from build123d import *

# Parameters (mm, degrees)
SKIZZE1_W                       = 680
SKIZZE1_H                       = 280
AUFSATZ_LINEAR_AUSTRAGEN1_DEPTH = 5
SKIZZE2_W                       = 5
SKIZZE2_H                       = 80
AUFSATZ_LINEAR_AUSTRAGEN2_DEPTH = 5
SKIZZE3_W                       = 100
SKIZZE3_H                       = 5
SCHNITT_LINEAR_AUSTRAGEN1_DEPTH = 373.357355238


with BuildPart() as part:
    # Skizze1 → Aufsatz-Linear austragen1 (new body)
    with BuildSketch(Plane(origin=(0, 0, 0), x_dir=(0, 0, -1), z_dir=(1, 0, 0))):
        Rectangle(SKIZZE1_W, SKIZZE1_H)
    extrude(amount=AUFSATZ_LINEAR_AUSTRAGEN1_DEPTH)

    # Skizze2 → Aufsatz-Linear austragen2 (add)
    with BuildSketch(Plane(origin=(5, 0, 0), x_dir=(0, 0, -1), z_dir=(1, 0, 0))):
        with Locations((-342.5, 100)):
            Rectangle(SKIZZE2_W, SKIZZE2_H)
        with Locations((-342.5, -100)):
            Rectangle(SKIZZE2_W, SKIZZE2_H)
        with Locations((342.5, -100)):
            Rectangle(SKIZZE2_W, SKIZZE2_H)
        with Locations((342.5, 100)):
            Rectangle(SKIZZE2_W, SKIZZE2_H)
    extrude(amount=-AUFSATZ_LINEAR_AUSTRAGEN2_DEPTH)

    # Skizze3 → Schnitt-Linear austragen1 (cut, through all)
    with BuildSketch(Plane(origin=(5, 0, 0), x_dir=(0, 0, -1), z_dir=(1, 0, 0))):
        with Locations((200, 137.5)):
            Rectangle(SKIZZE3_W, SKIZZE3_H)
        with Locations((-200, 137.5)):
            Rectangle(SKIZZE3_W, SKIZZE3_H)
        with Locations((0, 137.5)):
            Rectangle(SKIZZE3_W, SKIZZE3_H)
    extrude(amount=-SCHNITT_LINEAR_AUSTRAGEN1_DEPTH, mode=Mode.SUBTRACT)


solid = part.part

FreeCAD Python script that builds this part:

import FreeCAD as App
import Part
import Sketcher
from FreeCAD import Vector


def add_polygon(sketch, points):
    """Adds a closed chain of lines whose ends are joined by coincident constraints."""
    first, n = sketch.GeometryCount, len(points)
    for a, b in zip(points, points[1:] + points[:1]):
        sketch.addGeometry(Part.LineSegment(App.Vector(*a, 0), App.Vector(*b, 0)), False)
    for i in range(n):
        sketch.addConstraint(Sketcher.Constraint("Coincident", first + i, 2, first + (i + 1) % n, 1))

doc = App.newDocument("Part")
params = doc.addObject("Spreadsheet::Sheet", "Params")
for row, (alias, value) in enumerate([
    ("sketch1_width", "280 mm"),
    ("sketch1_height", "680 mm"),
    ("pad1_length", "5 mm"),
    ("sketch2_width", "80 mm"),
    ("sketch2_height", "5 mm"),
    ("pad2_length", "5 mm"),
    ("sketch3_width", "5 mm"),
    ("sketch3_height", "100 mm"),
], start=1):
    params.set(f"A{row}", alias)
    params.set(f"B{row}", "=" + value)
    params.setAlias(f"B{row}", alias)

body = doc.addObject("PartDesign::Body", "Body")

# Sketch on YZ plane
sketch1 = body.newObject("Sketcher::SketchObject", "Sketch")
sketch1.AttachmentSupport = (doc.getObject("YZ_Plane"), [""])
sketch1.MapMode = "FlatFace"
add_polygon(sketch1, [(140, 340), (-140, 340), (-140, -340), (140, -340)])  # lines 0-3
sketch1.addConstraint(Sketcher.Constraint("Horizontal", 0))
sketch1.addConstraint(Sketcher.Constraint("Vertical", 1))
sketch1.addConstraint(Sketcher.Constraint("Horizontal", 2))
sketch1.addConstraint(Sketcher.Constraint("Vertical", 3))
sketch1.addConstraint(Sketcher.Constraint("Symmetric", 0, 2, 2, 2, -1, 1))
sketch1.addConstraint(Sketcher.Constraint("DistanceX", 0, 2, 0, 1, 280.0))
sketch1.addConstraint(Sketcher.Constraint("DistanceY", 1, 2, 1, 1, 680.0))
sketch1.setExpression("Constraints[9]", "Params.sketch1_width")
sketch1.setExpression("Constraints[10]", "Params.sketch1_height")
pad1 = body.newObject("PartDesign::Pad", "Pad")
pad1.Profile = sketch1
pad1.setExpression("Length", "Params.pad1_length")

# Sketch on YZ plane
sketch2 = body.newObject("Sketcher::SketchObject", "Sketch001")
sketch2.AttachmentSupport = (doc.getObject("YZ_Plane"), [""])
sketch2.MapMode = "FlatFace"
sketch2.AttachmentOffset = App.Placement(Vector(0, 0, 5), App.Rotation())
add_polygon(sketch2, [(140, 345), (60, 345), (60, 340), (140, 340)])  # lines 0-3
add_polygon(sketch2, [(-60, 345), (-140, 345), (-140, 340), (-60, 340)])  # lines 4-7
add_polygon(sketch2, [(-60, -340), (-140, -340), (-140, -345), (-60, -345)])  # lines 8-11
add_polygon(sketch2, [(140, -340), (60, -340), (60, -345), (140, -345)])  # lines 12-15
sketch2.addConstraint(Sketcher.Constraint("Horizontal", 0))
sketch2.addConstraint(Sketcher.Constraint("Vertical", 1))
sketch2.addConstraint(Sketcher.Constraint("Horizontal", 2))
sketch2.addConstraint(Sketcher.Constraint("Vertical", 3))
sketch2.addConstraint(Sketcher.Constraint("Horizontal", 4))
sketch2.addConstraint(Sketcher.Constraint("Vertical", 5))
sketch2.addConstraint(Sketcher.Constraint("Horizontal", 6))
sketch2.addConstraint(Sketcher.Constraint("Vertical", 7))
sketch2.addConstraint(Sketcher.Constraint("Horizontal", 8))
sketch2.addConstraint(Sketcher.Constraint("Vertical", 9))
sketch2.addConstraint(Sketcher.Constraint("Horizontal", 10))
sketch2.addConstraint(Sketcher.Constraint("Vertical", 11))
sketch2.addConstraint(Sketcher.Constraint("Horizontal", 12))
sketch2.addConstraint(Sketcher.Constraint("Vertical", 13))
sketch2.addConstraint(Sketcher.Constraint("Horizontal", 14))
sketch2.addConstraint(Sketcher.Constraint("Vertical", 15))
sketch2.addConstraint(Sketcher.Constraint("Symmetric", 2, 2, 8, 2, -1, 1))
sketch2.addConstraint(Sketcher.Constraint("Symmetric", 0, 2, 10, 2, -1, 1))
sketch2.addConstraint(Sketcher.Constraint("Symmetric", 6, 2, 12, 2, -1, 1))
sketch2.addConstraint(Sketcher.Constraint("Symmetric", 4, 2, 14, 2, -1, 1))
sketch2.addConstraint(Sketcher.Constraint("Symmetric", 3, 2, 4, 2, -2))
sketch2.addConstraint(Sketcher.Constraint("Symmetric", 1, 2, 6, 2, -2))
sketch2.addConstraint(Sketcher.Constraint("DistanceX", 0, 2, 0, 1, 80.0))
sketch2.addConstraint(Sketcher.Constraint("DistanceY", 1, 2, 1, 1, 5.0))
sketch2.addConstraint(Sketcher.Constraint("DistanceX", -1, 1, 0, 2, 60.0))
sketch2.addConstraint(Sketcher.Constraint("DistanceY", -1, 1, 0, 2, 345.0))
sketch2.setExpression("Constraints[38]", "Params.sketch2_width")
sketch2.setExpression("Constraints[39]", "Params.sketch2_height")
pad2 = body.newObject("PartDesign::Pad", "Pad001")
pad2.Profile = sketch2
pad2.setExpression("Length", "Params.pad2_length")
pad2.Reversed = True

# Sketch on YZ plane
sketch3 = body.newObject("Sketcher::SketchObject", "Sketch002")
sketch3.AttachmentSupport = (doc.getObject("YZ_Plane"), [""])
sketch3.MapMode = "FlatFace"
sketch3.AttachmentOffset = App.Placement(Vector(0, 0, 5), App.Rotation())
add_polygon(sketch3, [(140, -150), (135, -150), (135, -250), (140, -250)])  # lines 0-3
add_polygon(sketch3, [(140, 250), (135, 250), (135, 150), (140, 150)])  # lines 4-7
add_polygon(sketch3, [(140, 50), (135, 50), (135, -50), (140, -50)])  # lines 8-11
sketch3.addConstraint(Sketcher.Constraint("Horizontal", 0))
sketch3.addConstraint(Sketcher.Constraint("Vertical", 1))
sketch3.addConstraint(Sketcher.Constraint("Horizontal", 2))
sketch3.addConstraint(Sketcher.Constraint("Vertical", 3))
sketch3.addConstraint(Sketcher.Constraint("Horizontal", 4))
sketch3.addConstraint(Sketcher.Constraint("Vertical", 5))
sketch3.addConstraint(Sketcher.Constraint("Horizontal", 6))
sketch3.addConstraint(Sketcher.Constraint("Vertical", 7))
sketch3.addConstraint(Sketcher.Constraint("Horizontal", 8))
sketch3.addConstraint(Sketcher.Constraint("Vertical", 9))
sketch3.addConstraint(Sketcher.Constraint("Horizontal", 10))
sketch3.addConstraint(Sketcher.Constraint("Vertical", 11))
sketch3.addConstraint(Sketcher.Constraint("Symmetric", 1, 2, 4, 2, -1))
sketch3.addConstraint(Sketcher.Constraint("Symmetric", 3, 2, 6, 2, -1))
sketch3.addConstraint(Sketcher.Constraint("Vertical", 5, 2, 8, 2))
sketch3.addConstraint(Sketcher.Constraint("Vertical", 7, 2, 10, 2))
sketch3.addConstraint(Sketcher.Constraint("Equal", 7, 9))
sketch3.addConstraint(Sketcher.Constraint("DistanceX", 0, 2, 0, 1, 5.0))
sketch3.addConstraint(Sketcher.Constraint("DistanceY", 1, 2, 1, 1, 100.0))
sketch3.addConstraint(Sketcher.Constraint("DistanceX", -1, 1, 0, 2, 135.0))
sketch3.addConstraint(Sketcher.Constraint("DistanceY", 0, 2, -1, 1, 150.0))
sketch3.addConstraint(Sketcher.Constraint("DistanceY", -1, 1, 8, 2, 50.0))
sketch3.setExpression("Constraints[29]", "Params.sketch3_width")
sketch3.setExpression("Constraints[30]", "Params.sketch3_height")
pocket1 = body.newObject("PartDesign::Pocket", "Pocket")
pocket1.Profile = sketch3
pocket1.Type = "ThroughAll"

doc.recompute()
